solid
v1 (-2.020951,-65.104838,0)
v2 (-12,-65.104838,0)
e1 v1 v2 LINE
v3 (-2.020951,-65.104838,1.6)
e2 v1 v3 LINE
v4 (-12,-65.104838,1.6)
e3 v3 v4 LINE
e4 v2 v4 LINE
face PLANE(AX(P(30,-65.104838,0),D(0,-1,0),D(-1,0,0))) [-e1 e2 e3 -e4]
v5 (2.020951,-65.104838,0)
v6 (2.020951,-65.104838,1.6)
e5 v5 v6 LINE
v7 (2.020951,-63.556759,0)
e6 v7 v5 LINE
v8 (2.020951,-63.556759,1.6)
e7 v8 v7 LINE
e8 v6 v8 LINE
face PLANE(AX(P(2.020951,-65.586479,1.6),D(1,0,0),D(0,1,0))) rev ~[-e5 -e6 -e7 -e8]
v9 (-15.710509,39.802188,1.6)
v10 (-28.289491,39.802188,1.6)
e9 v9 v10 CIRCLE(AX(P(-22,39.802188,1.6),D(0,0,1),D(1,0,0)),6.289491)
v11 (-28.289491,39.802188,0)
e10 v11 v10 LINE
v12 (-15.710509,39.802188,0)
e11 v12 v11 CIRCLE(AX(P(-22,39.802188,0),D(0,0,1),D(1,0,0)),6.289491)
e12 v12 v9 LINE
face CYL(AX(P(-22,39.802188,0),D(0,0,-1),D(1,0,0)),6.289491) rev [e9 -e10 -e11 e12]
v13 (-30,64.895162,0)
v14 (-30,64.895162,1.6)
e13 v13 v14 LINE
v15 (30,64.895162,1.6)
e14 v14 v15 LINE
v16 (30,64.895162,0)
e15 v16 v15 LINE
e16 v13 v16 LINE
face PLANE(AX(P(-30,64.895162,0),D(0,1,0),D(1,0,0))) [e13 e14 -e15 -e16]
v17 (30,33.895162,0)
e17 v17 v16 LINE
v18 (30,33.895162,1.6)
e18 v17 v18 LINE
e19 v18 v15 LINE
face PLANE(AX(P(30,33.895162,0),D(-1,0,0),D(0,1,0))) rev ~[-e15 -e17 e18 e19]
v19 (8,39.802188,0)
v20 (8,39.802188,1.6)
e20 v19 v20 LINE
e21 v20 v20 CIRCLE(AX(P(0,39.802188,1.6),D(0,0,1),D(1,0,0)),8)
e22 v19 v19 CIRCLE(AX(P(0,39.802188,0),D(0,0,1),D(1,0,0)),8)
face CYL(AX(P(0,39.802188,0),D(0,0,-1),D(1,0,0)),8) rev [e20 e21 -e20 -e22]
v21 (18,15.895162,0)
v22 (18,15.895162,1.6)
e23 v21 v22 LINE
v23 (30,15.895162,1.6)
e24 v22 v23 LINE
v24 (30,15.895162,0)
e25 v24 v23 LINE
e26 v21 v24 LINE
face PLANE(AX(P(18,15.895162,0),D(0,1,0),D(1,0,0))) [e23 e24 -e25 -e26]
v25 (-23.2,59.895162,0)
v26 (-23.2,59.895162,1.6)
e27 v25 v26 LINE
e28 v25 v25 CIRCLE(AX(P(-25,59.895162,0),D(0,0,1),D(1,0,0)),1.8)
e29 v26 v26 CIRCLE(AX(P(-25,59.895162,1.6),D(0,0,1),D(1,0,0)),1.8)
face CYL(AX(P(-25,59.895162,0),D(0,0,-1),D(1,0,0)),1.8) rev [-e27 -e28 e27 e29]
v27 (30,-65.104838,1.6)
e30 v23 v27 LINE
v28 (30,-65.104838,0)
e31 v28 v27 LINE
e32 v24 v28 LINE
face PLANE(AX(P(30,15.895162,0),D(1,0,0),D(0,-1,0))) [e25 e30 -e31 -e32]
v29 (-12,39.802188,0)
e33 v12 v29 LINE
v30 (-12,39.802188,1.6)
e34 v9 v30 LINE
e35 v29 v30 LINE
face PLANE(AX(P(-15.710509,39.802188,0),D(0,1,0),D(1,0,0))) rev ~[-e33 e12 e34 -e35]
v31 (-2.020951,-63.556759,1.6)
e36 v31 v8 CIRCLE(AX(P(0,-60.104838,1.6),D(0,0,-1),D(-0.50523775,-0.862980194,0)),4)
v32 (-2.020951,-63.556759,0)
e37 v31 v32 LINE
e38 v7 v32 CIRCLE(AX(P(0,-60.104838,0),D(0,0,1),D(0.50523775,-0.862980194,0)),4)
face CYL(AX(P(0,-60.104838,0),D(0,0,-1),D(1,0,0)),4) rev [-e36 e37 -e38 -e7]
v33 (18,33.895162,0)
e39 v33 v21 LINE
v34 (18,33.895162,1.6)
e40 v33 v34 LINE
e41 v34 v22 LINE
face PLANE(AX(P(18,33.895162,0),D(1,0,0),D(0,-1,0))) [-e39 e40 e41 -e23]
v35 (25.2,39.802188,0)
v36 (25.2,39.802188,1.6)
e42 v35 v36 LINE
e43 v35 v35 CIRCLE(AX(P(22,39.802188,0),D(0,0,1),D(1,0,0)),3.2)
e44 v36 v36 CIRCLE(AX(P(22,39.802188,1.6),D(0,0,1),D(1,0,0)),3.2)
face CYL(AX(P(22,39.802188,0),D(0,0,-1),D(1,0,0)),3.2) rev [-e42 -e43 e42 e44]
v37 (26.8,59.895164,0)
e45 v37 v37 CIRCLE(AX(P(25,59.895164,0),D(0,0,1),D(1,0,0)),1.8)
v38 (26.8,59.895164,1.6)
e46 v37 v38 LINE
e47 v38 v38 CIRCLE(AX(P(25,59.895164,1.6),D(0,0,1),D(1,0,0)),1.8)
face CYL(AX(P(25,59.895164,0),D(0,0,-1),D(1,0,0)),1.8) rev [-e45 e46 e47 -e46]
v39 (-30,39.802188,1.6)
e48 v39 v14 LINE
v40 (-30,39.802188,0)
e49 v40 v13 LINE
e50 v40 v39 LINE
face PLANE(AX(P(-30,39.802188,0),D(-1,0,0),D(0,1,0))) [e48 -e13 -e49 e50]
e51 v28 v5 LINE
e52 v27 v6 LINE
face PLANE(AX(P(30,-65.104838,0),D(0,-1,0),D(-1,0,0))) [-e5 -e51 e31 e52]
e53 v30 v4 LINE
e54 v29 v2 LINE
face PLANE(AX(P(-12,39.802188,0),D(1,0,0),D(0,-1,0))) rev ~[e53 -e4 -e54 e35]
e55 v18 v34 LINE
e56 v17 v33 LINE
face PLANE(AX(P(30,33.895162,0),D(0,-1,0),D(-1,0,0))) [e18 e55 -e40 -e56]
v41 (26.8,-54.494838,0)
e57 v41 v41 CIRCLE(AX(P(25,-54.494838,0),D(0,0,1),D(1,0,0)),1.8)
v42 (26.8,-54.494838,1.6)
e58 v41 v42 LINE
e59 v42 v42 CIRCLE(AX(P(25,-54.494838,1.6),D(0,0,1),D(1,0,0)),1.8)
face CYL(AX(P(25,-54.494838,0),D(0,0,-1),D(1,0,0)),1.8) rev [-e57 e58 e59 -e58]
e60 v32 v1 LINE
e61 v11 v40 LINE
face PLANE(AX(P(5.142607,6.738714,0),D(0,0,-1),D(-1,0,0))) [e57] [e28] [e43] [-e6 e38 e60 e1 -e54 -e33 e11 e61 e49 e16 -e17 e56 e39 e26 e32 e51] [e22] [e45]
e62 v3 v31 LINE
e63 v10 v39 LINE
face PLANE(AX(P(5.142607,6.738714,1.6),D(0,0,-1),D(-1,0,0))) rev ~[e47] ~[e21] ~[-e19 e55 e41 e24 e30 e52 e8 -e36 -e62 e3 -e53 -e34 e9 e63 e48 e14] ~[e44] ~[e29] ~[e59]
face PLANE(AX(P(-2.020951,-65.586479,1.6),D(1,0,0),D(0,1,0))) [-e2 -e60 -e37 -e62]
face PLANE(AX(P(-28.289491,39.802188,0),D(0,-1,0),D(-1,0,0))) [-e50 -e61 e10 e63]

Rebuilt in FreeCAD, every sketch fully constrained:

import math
import FreeCAD as App
import Part
import Sketcher
Q = App.Units.Quantity

doc = App.newDocument("Part")
body = doc.addObject("PartDesign::Body", "Body")

sketch1 = doc.addObject("Sketcher::SketchObject", "Sketch")
body.addObject(sketch1)
sketch1.AttachmentSupport = (doc.XY_Plane, [""])
sketch1.MapMode = "FlatFace"
sketch1.addGeometry(Part.ArcOfCircle(Part.Circle(App.Vector(-22, 39.8, 0), App.Vector(0, 0, 1), 6.3), math.radians(0), math.radians(180)), False)
sketch1.addGeometry(Part.LineSegment(App.Vector(-15.7, 39.8, 0), App.Vector(-12, 39.8, 0)), False)
sketch1.addGeometry(Part.LineSegment(App.Vector(-12, 39.8, 0), App.Vector(-12, -65.1, 0)), False)
sketch1.addGeometry(Part.LineSegment(App.Vector(-12, -65.1, 0), App.Vector(30, -65.1, 0)), False)
sketch1.addGeometry(Part.LineSegment(App.Vector(30, -65.1, 0), App.Vector(30, 15.9, 0)), False)
sketch1.addGeometry(Part.LineSegment(App.Vector(30, 15.9, 0), App.Vector(18, 15.9, 0)), False)
sketch1.addGeometry(Part.LineSegment(App.Vector(18, 15.9, 0), App.Vector(18, 33.9, 0)), False)
sketch1.addGeometry(Part.LineSegment(App.Vector(18, 33.9, 0), App.Vector(30, 33.9, 0)), False)
sketch1.addGeometry(Part.LineSegment(App.Vector(30, 33.9, 0), App.Vector(30, 64.9, 0)), False)
sketch1.addGeometry(Part.LineSegment(App.Vector(30, 64.9, 0), App.Vector(-30, 64.9, 0)), False)
sketch1.addGeometry(Part.LineSegment(App.Vector(-30, 64.9, 0), App.Vector(-30, 39.8, 0)), False)
sketch1.addGeometry(Part.LineSegment(App.Vector(-30, 39.8, 0), App.Vector(-28.3, 39.8, 0)), False)
sketch1.addGeometry(Part.Circle(App.Vector(25, -54.5, 0), App.Vector(0, 0, 1), 1.8), False)
sketch1.addGeometry(Part.Circle(App.Vector(0, -60.1, 0), App.Vector(0, 0, 1), 4), False)
sketch1.addGeometry(Part.Circle(App.Vector(22, 39.8, 0), App.Vector(0, 0, 1), 3.2), False)
sketch1.addGeometry(Part.Circle(App.Vector(25, 59.9, 0), App.Vector(0, 0, 1), 1.8), False)
sketch1.addGeometry(Part.Circle(App.Vector(0, 39.8, 0), App.Vector(0, 0, 1), 8), False)
sketch1.addGeometry(Part.Circle(App.Vector(-25, 59.9, 0), App.Vector(0, 0, 1), 1.8), False)
sketch1.addConstraint(Sketcher.Constraint("Coincident", 0, 1, 1, 1))
sketch1.addConstraint(Sketcher.Constraint("Coincident", 1, 2, 2, 1))
sketch1.addConstraint(Sketcher.Constraint("Coincident", 2, 2, 3, 1))
sketch1.addConstraint(Sketcher.Constraint("Coincident", 3, 2, 4, 1))
sketch1.addConstraint(Sketcher.Constraint("Coincident", 4, 2, 5, 1))
sketch1.addConstraint(Sketcher.Constraint("Coincident", 5, 2, 6, 1))
sketch1.addConstraint(Sketcher.Constraint("Coincident", 6, 2, 7, 1))
sketch1.addConstraint(Sketcher.Constraint("Coincident", 7, 2, 8, 1))
sketch1.addConstraint(Sketcher.Constraint("Coincident", 8, 2, 9, 1))
sketch1.addConstraint(Sketcher.Constraint("Coincident", 9, 2, 10, 1))
sketch1.addConstraint(Sketcher.Constraint("Coincident", 10, 2, 11, 1))
sketch1.addConstraint(Sketcher.Constraint("Coincident", 11, 2, 0, 2))
sketch1.addConstraint(Sketcher.Constraint("Horizontal", 1))
sketch1.addConstraint(Sketcher.Constraint("Vertical", 2))
sketch1.addConstraint(Sketcher.Constraint("Horizontal", 3))
sketch1.addConstraint(Sketcher.Constraint("Vertical", 4))
sketch1.addConstraint(Sketcher.Constraint("Horizontal", 5))
sketch1.addConstraint(Sketcher.Constraint("Vertical", 6))
sketch1.addConstraint(Sketcher.Constraint("Horizontal", 7))
sketch1.addConstraint(Sketcher.Constraint("Vertical", 8))
sketch1.addConstraint(Sketcher.Constraint("Horizontal", 9))
sketch1.addConstraint(Sketcher.Constraint("Vertical", 10))
sketch1.addConstraint(Sketcher.Constraint("Horizontal", 11))
sketch1.addConstraint(Sketcher.Constraint("Equal", 12, 15))
sketch1.addConstraint(Sketcher.Constraint("Equal", 15, 17))
sketch1.addConstraint(Sketcher.Constraint("Symmetric", 0, 3, 14, 3, -2))
sketch1.addConstraint(Sketcher.Constraint("Symmetric", 15, 3, 17, 3, -2))
sketch1.addConstraint(Sketcher.Constraint("PointOnObject", 13, 3, -2))
sketch1.addConstraint(Sketcher.Constraint("PointOnObject", 16, 3, -2))
sketch1.addConstraint(Sketcher.Constraint("Horizontal", 14, 3, 16, 3))
sketch1.addConstraint(Sketcher.Constraint("Horizontal", 16, 3, 0, 1))
sketch1.addConstraint(Sketcher.Constraint("Horizontal", 1, 2, 10, 2))
sketch1.addConstraint(Sketcher.Constraint("Vertical", 12, 3, 15, 3))
sketch1.addConstraint(Sketcher.Constraint("Vertical", 4, 2, 7, 2))
sketch1.addConstraint(Sketcher.Constraint("Diameter", 13, Q("8 mm")))
sketch1.addConstraint(Sketcher.Constraint("Diameter", 16, Q("16 mm")))
sketch1.addConstraint(Sketcher.Constraint("Diameter", 12, Q("3.6 mm")))
sketch1.addConstraint(Sketcher.Constraint("Diameter", 14, Q("6.4 mm")))
sketch1.addConstraint(Sketcher.Constraint("DistanceX", 3, 1, 3, 2, Q("42 mm")))
sketch1.addConstraint(Sketcher.Constraint("DistanceX", 5, 2, 5, 1, Q("12 mm")))
sketch1.addConstraint(Sketcher.Constraint("DistanceX", 9, 2, 9, 1, Q("60 mm")))
sketch1.addConstraint(Sketcher.Constraint("DistanceY", 4, 1, 4, 2, Q("81 mm")))
sketch1.addConstraint(Sketcher.Constraint("DistanceY", 6, 1, 6, 2, Q("18 mm")))
sketch1.addConstraint(Sketcher.Constraint("DistanceY", 8, 1, 8, 2, Q("31 mm")))
sketch1.addConstraint(Sketcher.Constraint("DistanceX", 0, 3, -1, 1, Q("22 mm")))
sketch1.addConstraint(Sketcher.Constraint("DistanceX", -1, 1, 12, 3, Q("25 mm")))
sketch1.addConstraint(Sketcher.Constraint("DistanceX", 1, 2, -1, 1, Q("12 mm")))
sketch1.addConstraint(Sketcher.Constraint("DistanceY", 13, 3, 15, 3, Q("120.000002 mm")))
sketch1.addConstraint(Sketcher.Constraint("DistanceY", 2, 2, 13, 3, Q("5 mm")))
sketch1.addConstraint(Sketcher.Constraint("Radius", 0, Q("6.289491 mm")))
sketch1.addConstraint(Sketcher.Constraint("DistanceY", 13, 3, 12, 3, Q("5.61 mm")))
sketch1.addConstraint(Sketcher.Constraint("DistanceY", 2, 2, 2, 1, Q("104.907026 mm")))
sketch1.addConstraint(Sketcher.Constraint("DistanceY", 2, 2, -1, 1, Q("65.104838 mm")))
pad1 = doc.addObject("PartDesign::Pad", "Pad")
body.addObject(pad1)
pad1.Profile = sketch1
pad1.Length = 1.6

sketch2 = doc.addObject("Sketcher::SketchObject", "Sketch001")
body.addObject(sketch2)
sketch2.AttachmentSupport = (doc.XY_Plane, [""])
sketch2.MapMode = "FlatFace"
sketch2.AttachmentOffset = App.Placement(App.Vector(0, 0, 1.6), App.Rotation())
sketch2.addGeometry(Part.LineSegment(App.Vector(-2, -63.4, 0), App.Vector(-2, -65.6, 0)), False)
sketch2.addGeometry(Part.LineSegment(App.Vector(-2, -65.6, 0), App.Vector(2, -65.6, 0)), False)
sketch2.addGeometry(Part.LineSegment(App.Vector(2, -65.6, 0), App.Vector(2, -63.4, 0)), False)
sketch2.addGeometry(Part.LineSegment(App.Vector(2, -63.4, 0), App.Vector(-2, -63.4, 0)), False)
sketch2.addConstraint(Sketcher.Constraint("Coincident", 0, 2, 1, 1))
sketch2.addConstraint(Sketcher.Constraint("Coincident", 1, 2, 2, 1))
sketch2.addConstraint(Sketcher.Constraint("Coincident", 2, 2, 3, 1))
sketch2.addConstraint(Sketcher.Constraint("Coincident", 3, 2, 0, 1))
sketch2.addConstraint(Sketcher.Constraint("Vertical", 0))
sketch2.addConstraint(Sketcher.Constraint("Horizontal", 1))
sketch2.addConstraint(Sketcher.Constraint("Vertical", 2))
sketch2.addConstraint(Sketcher.Constraint("Horizontal", 3))
sketch2.addConstraint(Sketcher.Constraint("DistanceY", 0, 2, 0, 1, Q("2.18935 mm")))
sketch2.addConstraint(Sketcher.Constraint("DistanceX", 1, 1, 1, 2, Q("4.041902 mm")))
sketch2.addConstraint(Sketcher.Constraint("DistanceX", 0, 2, -1, 1, Q("2.020951 mm")))
sketch2.addConstraint(Sketcher.Constraint("DistanceY", 0, 2, -1, 1, Q("65.586479 mm")))
pocket1 = doc.addObject("PartDesign::Pocket", "Pocket")
body.addObject(pocket1)
pocket1.Profile = sketch2
pocket1.Length = 5

doc.recompute()
